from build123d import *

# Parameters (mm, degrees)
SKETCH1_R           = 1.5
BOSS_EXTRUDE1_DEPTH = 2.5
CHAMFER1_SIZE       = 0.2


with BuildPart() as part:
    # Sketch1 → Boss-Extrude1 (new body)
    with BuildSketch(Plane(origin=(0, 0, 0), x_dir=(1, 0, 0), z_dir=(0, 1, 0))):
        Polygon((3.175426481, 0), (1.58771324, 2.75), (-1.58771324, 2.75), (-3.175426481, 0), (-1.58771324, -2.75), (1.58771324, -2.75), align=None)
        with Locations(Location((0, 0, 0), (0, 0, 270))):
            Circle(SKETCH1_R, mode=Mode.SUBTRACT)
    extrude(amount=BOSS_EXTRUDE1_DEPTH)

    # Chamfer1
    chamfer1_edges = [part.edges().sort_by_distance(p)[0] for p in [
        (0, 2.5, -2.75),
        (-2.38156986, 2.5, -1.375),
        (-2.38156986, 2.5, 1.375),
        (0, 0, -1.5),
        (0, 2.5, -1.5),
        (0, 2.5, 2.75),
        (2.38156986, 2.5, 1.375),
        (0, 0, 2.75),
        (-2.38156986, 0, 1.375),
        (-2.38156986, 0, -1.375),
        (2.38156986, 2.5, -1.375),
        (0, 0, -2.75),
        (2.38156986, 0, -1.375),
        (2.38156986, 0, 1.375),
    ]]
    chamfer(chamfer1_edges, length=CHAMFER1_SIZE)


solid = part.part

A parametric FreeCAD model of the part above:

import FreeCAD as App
import Part
import Sketcher
Q = App.Units.Quantity


def edges_at(feature, points):
    """Names of the edges that pass closest to the given points."""
    edges = feature.Shape.Edges
    near = lambda p: min(range(len(edges)), key=lambda i: edges[i].distToShape(Part.Vertex(*p))[0])
    return sorted({f"Edge{near(p) + 1}" for p in points})


def add_polygon(sketch, points):
    """Adds a closed chain of lines whose ends are joined by coincident constraints."""
    first, n = sketch.GeometryCount, len(points)
    for a, b in zip(points, points[1:] + points[:1]):
        sketch.addGeometry(Part.LineSegment(App.Vector(*a, 0), App.Vector(*b, 0)), False)
    for i in range(n):
        sketch.addConstraint(Sketcher.Constraint("Coincident", first + i, 2, first + (i + 1) % n, 1))

doc = App.newDocument("Part")
body = doc.addObject("PartDesign::Body", "Body")

# Sketch on XZ plane
sketch1 = body.newObject("Sketcher::SketchObject", "Sketch")
sketch1.AttachmentSupport = (doc.getObject("XZ_Plane"), [""])
sketch1.MapMode = "FlatFace"
add_polygon(sketch1, [(3.2, 0), (1.6, -2.8), (-1.6, -2.8), (-3.2, 0), (-1.6, 2.8), (1.6, 2.8)])  # lines 0-5
sketch1.addGeometry(Part.Circle(App.Vector(0, 0, 0), App.Vector(0, 0, 1), 1.5), False)  # 6
sketch1.addConstraint([
    Sketcher.Constraint("Horizontal", 1),
    Sketcher.Constraint("Horizontal", 4),
    Sketcher.Constraint("Coincident", 6, 3, -1, 1),
    Sketcher.Constraint("Symmetric", 0, 2, 3, 2, -1, 1),
    Sketcher.Constraint("Symmetric", 2, 2, 5, 2, -1, 1),
    Sketcher.Constraint("PointOnObject", 2, 2, -1),
    Sketcher.Constraint("Parallel", 2, 5),
    Sketcher.Constraint("Vertical", 1, 2, 3, 2),
    Sketcher.Constraint("Diameter", 6, Q("3 mm")),
    Sketcher.Constraint("Angle", 0, Q("-120 deg")),
    Sketcher.Constraint("DistanceY", 1, 2, 3, 2, Q("5.5 mm")),
    Sketcher.Constraint("DistanceX", 1, 2, 1, 1, Q("3.175426 mm")),
])
pad1 = body.newObject("PartDesign::Pad", "Pad")
pad1.Profile = sketch1
pad1.Length = 2.5
pad1.Reversed = True
doc.recompute()

chamfer = body.newObject("PartDesign::Chamfer", "Chamfer")
chamfer.Base = (pad1, edges_at(pad1, [
    (0, 2.5, -2.75),
    (-2.382, 2.5, -1.375),
    (-2.382, 2.5, 1.375),
    (0, 0, -1.5),
    (0, 2.5, -1.5),
    (0, 2.5, 2.75),
    (2.382, 2.5, 1.375),
    (0, 0, 2.75),
    (-2.382, 0, 1.375),
    (-2.382, 0, -1.375),
    (2.382, 2.5, -1.375),
    (0, 0, -2.75),
    (2.382, 0, -1.375),
    (2.382, 0, 1.375),
]))
chamfer.Size = 0.2

doc.recompute()
